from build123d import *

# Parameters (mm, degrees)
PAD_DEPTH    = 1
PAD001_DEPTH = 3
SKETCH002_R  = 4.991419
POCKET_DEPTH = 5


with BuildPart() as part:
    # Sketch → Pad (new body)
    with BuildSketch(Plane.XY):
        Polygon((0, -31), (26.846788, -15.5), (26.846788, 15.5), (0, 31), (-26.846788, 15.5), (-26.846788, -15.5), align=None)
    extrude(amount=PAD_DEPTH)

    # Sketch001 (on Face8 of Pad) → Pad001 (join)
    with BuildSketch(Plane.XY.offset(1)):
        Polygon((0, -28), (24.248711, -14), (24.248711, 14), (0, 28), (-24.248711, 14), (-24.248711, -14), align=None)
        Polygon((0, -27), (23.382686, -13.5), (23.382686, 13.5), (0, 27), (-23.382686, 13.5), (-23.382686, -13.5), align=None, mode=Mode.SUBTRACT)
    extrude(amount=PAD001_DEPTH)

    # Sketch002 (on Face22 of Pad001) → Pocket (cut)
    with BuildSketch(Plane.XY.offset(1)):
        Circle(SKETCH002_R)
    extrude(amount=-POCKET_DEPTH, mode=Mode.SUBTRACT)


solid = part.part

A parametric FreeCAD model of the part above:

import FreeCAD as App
import Part
import Sketcher
from FreeCAD import Vector
Q = App.Units.Quantity

doc = App.newDocument("Part")
body = doc.addObject("PartDesign::Body", "Body")

sketch1 = body.newObject("Sketcher::SketchObject", "Sketch")
sketch1.AttachmentSupport = (doc.getObject("XY_Plane"), [""])
sketch1.MapMode = "FlatFace"
sketch1.addGeometry([
    Part.LineSegment(Vector(0, -31, 0), Vector(27, -16, 0)),
    Part.LineSegment(Vector(27, -16, 0), Vector(27, 16, 0)),
    Part.LineSegment(Vector(27, 16, 0), Vector(0, 31, 0)),
    Part.LineSegment(Vector(0, 31, 0), Vector(-27, 16, 0)),
    Part.LineSegment(Vector(-27, 16, 0), Vector(-27, -16, 0)),
    Part.LineSegment(Vector(-27, -16, 0), Vector(0, -31, 0)),
], False)
sketch1.addConstraint([
    Sketcher.Constraint("Coincident", 0, 2, 1, 1),
    Sketcher.Constraint("Coincident", 1, 2, 2, 1),
    Sketcher.Constraint("Coincident", 2, 2, 3, 1),
    Sketcher.Constraint("Coincident", 3, 2, 4, 1),
    Sketcher.Constraint("Coincident", 4, 2, 5, 1),
    Sketcher.Constraint("Coincident", 5, 2, 0, 1),
    Sketcher.Constraint("Vertical", 1),
    Sketcher.Constraint("Vertical", 4),
    Sketcher.Constraint("Symmetric", 0, 2, 3, 2, -1, 1),
    Sketcher.Constraint("Symmetric", 2, 2, 5, 2, -1, 1),
    Sketcher.Constraint("PointOnObject", 2, 2, -2),
    Sketcher.Constraint("Parallel", 2, 5),
    Sketcher.Constraint("Horizontal", 1, 2, 3, 2),
    Sketcher.Constraint("DistanceY", 1, 1, 1, 2, Q("31 mm")),
    Sketcher.Constraint("Angle", 0, Q("30 deg")),
    Sketcher.Constraint("Distance", 0, Q("31 mm")),
])
pad1 = body.newObject("PartDesign::Pad", "Pad")
pad1.Profile = sketch1
pad1.Length = 1

sketch2 = body.newObject("Sketcher::SketchObject", "Sketch001")
sketch2.AttachmentSupport = (doc.getObject("XY_Plane"), [""])
sketch2.MapMode = "FlatFace"
sketch2.AttachmentOffset = App.Placement(Vector(0, 0, 1), App.Rotation())
sketch2.addGeometry([
    Part.LineSegment(Vector(0, -28, 0), Vector(24, -14, 0)),
    Part.LineSegment(Vector(24, -14, 0), Vector(24, 14, 0)),
    Part.LineSegment(Vector(24, 14, 0), Vector(0, 28, 0)),
    Part.LineSegment(Vector(0, 28, 0), Vector(-24, 14, 0)),
    Part.LineSegment(Vector(-24, 14, 0), Vector(-24, -14, 0)),
    Part.LineSegment(Vector(-24, -14, 0), Vector(0, -28, 0)),
    Part.LineSegment(Vector(23, -14, 0), Vector(0, -27, 0)),
    Part.LineSegment(Vector(0, -27, 0), Vector(-23, -14, 0)),
    Part.LineSegment(Vector(-23, -14, 0), Vector(-23, 14, 0)),
    Part.LineSegment(Vector(-23, 14, 0), Vector(0, 27, 0)),
    Part.LineSegment(Vector(0, 27, 0), Vector(23, 14, 0)),
    Part.LineSegment(Vector(23, 14, 0), Vector(23, -14, 0)),
], False)
sketch2.addConstraint([
    Sketcher.Constraint("Coincident", 0, 2, 1, 1),
    Sketcher.Constraint("Coincident", 1, 2, 2, 1),
    Sketcher.Constraint("Coincident", 2, 2, 3, 1),
    Sketcher.Constraint("Coincident", 3, 2, 4, 1),
    Sketcher.Constraint("Coincident", 4, 2, 5, 1),
    Sketcher.Constraint("Coincident", 5, 2, 0, 1),
    Sketcher.Constraint("Coincident", 6, 2, 7, 1),
    Sketcher.Constraint("Coincident", 7, 2, 8, 1),
    Sketcher.Constraint("Coincident", 8, 2, 9, 1),
    Sketcher.Constraint("Coincident", 9, 2, 10, 1),
    Sketcher.Constraint("Coincident", 10, 2, 11, 1),
    Sketcher.Constraint("Coincident", 11, 2, 6, 1),
    Sketcher.Constraint("Vertical", 1),
    Sketcher.Constraint("Vertical", 4),
    Sketcher.Constraint("Vertical", 8),
    Sketcher.Constraint("Vertical", 11),
    Sketcher.Constraint("Symmetric", 0, 2, 3, 2, -1, 1),
    Sketcher.Constraint("Symmetric", 2, 2, 5, 2, -1, 1),
    Sketcher.Constraint("Symmetric", 6, 2, 9, 2, -1, 1),
    Sketcher.Constraint("Symmetric", 7, 2, 10, 2, -1, 1),
    Sketcher.Constraint("PointOnObject", 2, 2, -2),
    Sketcher.Constraint("PointOnObject", 6, 2, -2),
    Sketcher.Constraint("Parallel", 2, 5),
    Sketcher.Constraint("Parallel", 3, 6),
    Sketcher.Constraint("Parallel", 5, 7),
    Sketcher.Constraint("Parallel", 6, 9),
    Sketcher.Constraint("Horizontal", 1, 2, 3, 2),
    Sketcher.Constraint("DistanceY", 1, 1, 1, 2, Q("28 mm")),
    Sketcher.Constraint("DistanceY", 8, 1, 8, 2, Q("27 mm")),
    Sketcher.Constraint("Angle", 0, Q("30 deg")),
    Sketcher.Constraint("Distance", 0, Q("28 mm")),
    Sketcher.Constraint("Distance", 6, Q("27 mm")),
])
pad2 = body.newObject("PartDesign::Pad", "Pad001")
pad2.Profile = sketch2
pad2.Length = 3

sketch3 = body.newObject("Sketcher::SketchObject", "Sketch002")
sketch3.AttachmentSupport = (doc.getObject("XY_Plane"), [""])
sketch3.MapMode = "FlatFace"
sketch3.AttachmentOffset = App.Placement(Vector(0, 0, 1), App.Rotation())
sketch3.addGeometry(Part.Circle(Vector(0, 0, 0), Vector(0, 0, 1), 5), False)
sketch3.addConstraint([
    Sketcher.Constraint("Coincident", 0, 3, -1, 1),
    Sketcher.Constraint("Diameter", 0, Q("9.982838 mm")),
])
pocket1 = body.newObject("PartDesign::Pocket", "Pocket")
pocket1.Profile = sketch3
pocket1.Length = 5

doc.recompute()
